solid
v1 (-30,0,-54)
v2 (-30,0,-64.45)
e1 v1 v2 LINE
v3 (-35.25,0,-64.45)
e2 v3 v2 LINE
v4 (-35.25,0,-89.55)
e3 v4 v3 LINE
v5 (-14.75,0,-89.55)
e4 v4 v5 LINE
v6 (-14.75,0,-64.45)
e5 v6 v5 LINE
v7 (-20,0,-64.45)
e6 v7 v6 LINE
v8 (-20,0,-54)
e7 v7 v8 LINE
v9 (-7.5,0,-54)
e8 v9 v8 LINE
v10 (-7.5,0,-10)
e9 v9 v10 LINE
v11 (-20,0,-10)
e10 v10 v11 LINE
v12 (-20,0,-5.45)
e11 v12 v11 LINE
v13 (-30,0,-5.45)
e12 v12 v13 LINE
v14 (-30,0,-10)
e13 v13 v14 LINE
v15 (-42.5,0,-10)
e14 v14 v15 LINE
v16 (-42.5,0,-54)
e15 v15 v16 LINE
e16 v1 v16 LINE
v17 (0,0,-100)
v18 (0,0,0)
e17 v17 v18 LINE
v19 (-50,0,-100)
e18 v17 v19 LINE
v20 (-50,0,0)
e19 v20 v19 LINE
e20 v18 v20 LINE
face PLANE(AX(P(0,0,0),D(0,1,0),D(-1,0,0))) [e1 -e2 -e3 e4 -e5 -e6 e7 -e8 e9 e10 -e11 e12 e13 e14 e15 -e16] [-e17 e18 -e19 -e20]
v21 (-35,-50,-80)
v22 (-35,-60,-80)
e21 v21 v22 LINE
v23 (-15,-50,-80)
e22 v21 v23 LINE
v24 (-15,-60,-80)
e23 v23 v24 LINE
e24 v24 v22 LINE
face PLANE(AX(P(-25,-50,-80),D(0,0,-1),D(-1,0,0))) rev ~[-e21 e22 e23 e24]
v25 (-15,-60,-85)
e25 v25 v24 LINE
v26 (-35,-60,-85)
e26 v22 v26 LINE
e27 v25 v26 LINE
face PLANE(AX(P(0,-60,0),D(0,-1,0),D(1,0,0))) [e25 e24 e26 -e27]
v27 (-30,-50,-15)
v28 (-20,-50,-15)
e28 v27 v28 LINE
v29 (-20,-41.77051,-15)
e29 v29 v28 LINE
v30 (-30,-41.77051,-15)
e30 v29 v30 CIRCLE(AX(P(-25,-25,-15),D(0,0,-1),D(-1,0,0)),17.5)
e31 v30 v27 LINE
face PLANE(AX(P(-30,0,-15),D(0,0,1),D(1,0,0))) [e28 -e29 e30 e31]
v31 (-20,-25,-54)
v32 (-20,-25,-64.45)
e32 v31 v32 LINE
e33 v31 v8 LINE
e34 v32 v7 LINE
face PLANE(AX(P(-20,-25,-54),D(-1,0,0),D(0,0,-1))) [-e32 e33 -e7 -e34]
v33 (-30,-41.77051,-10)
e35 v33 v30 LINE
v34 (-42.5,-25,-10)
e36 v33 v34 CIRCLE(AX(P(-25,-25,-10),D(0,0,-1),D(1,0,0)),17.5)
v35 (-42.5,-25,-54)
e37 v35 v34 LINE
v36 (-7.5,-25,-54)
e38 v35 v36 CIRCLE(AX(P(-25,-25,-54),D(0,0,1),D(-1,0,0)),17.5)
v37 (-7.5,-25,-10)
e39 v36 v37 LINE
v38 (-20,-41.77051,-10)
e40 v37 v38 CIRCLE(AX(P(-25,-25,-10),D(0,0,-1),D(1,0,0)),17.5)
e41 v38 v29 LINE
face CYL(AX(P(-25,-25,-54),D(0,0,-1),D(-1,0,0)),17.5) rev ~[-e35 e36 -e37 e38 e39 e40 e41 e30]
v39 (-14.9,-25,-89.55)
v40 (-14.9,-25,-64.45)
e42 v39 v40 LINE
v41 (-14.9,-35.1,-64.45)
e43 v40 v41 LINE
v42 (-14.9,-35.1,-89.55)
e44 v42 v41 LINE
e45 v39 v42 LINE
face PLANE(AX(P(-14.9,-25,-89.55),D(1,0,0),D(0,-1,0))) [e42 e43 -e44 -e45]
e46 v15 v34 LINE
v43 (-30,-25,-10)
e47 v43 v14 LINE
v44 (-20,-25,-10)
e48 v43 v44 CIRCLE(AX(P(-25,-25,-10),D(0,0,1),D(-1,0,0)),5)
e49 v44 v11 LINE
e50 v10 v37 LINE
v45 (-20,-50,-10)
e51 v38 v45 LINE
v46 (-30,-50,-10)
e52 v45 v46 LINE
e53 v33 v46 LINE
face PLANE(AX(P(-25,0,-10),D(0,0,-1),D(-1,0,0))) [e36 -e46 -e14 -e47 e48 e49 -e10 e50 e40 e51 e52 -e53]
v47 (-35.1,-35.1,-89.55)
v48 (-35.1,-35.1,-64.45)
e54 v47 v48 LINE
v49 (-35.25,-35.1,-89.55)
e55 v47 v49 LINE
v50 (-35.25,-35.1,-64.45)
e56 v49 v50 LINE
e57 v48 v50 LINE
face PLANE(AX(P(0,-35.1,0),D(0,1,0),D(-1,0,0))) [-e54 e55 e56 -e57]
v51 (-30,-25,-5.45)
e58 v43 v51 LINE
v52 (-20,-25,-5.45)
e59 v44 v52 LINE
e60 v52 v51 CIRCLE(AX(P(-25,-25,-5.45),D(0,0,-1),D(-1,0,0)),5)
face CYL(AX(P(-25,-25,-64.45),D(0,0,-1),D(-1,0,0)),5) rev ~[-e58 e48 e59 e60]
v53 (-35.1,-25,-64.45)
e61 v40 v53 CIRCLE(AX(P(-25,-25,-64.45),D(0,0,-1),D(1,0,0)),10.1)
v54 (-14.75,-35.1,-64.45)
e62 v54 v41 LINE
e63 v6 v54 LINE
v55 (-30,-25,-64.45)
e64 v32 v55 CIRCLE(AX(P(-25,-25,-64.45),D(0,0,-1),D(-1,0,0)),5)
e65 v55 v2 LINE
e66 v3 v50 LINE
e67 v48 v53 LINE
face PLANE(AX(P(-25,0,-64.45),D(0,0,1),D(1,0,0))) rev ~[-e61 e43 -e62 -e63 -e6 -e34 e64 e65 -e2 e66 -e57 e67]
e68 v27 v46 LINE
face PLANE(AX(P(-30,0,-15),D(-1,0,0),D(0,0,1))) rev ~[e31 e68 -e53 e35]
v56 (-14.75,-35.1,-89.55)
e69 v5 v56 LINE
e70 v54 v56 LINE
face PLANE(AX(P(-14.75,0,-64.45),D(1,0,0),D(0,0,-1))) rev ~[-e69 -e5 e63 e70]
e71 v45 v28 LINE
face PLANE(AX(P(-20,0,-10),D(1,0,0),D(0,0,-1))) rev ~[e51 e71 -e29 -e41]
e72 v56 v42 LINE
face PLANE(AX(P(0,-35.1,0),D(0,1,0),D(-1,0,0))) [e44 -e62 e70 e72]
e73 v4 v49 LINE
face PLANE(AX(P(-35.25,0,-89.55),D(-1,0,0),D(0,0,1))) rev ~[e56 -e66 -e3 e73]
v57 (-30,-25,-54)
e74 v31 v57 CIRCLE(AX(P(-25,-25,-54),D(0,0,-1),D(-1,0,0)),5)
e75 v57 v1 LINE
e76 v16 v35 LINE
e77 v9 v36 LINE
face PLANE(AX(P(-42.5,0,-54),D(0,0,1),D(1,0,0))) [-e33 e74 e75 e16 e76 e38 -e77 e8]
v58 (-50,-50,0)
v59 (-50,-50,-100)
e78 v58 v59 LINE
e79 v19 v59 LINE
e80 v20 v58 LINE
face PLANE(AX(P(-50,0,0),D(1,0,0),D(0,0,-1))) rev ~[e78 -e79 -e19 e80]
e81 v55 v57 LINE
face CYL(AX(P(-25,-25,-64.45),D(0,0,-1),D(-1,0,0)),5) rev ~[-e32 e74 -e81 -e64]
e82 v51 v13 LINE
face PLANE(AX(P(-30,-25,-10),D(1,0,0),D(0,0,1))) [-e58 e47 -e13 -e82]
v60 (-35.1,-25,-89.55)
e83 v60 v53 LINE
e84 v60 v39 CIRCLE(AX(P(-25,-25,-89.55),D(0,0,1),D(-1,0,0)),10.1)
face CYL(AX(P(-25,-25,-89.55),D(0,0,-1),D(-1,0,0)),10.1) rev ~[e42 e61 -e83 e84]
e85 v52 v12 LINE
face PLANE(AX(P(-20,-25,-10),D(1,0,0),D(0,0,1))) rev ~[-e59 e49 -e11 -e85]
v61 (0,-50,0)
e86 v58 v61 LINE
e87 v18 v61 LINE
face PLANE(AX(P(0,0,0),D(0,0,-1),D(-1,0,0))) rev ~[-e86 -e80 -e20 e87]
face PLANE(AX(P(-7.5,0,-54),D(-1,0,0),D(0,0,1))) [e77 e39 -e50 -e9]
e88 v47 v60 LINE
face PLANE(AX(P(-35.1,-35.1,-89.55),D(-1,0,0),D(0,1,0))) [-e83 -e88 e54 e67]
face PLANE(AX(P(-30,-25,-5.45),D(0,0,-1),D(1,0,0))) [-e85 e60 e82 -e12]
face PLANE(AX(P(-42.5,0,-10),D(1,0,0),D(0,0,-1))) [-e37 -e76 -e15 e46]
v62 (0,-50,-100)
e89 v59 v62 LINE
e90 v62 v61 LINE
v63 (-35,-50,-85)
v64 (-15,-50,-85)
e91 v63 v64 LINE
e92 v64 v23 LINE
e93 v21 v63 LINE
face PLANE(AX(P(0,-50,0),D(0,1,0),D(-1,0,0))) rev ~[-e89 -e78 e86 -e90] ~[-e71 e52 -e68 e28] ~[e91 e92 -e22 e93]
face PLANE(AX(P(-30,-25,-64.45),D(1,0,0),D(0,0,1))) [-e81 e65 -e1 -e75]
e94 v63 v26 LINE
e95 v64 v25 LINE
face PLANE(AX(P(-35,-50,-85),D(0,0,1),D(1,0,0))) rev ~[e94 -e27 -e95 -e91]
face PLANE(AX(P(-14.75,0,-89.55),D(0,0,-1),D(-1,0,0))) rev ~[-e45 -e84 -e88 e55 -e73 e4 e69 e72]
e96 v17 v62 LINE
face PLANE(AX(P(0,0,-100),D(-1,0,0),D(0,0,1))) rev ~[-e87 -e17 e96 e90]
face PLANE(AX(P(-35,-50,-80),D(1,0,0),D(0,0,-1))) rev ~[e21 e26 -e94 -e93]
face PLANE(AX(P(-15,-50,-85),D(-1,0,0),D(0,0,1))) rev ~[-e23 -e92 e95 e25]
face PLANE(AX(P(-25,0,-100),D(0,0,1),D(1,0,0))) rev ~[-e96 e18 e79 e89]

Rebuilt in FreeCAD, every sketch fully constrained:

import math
import FreeCAD as App
import Part
import Sketcher

doc = App.newDocument("Part")
body = doc.addObject("PartDesign::Body", "Body")

# Sketch on XZ plane
sketch1 = body.newObject("Sketcher::SketchObject", "Sketch")
sketch1.AttachmentSupport = (doc.getObject("XZ_Plane"), [""])
sketch1.MapMode = "FlatFace"
sketch1.addGeometry([
    Part.LineSegment(App.Vector(0, 0, 0), App.Vector(0, -100, 0)),
    Part.LineSegment(App.Vector(0, -100, 0), App.Vector(-50, -100, 0)),
    Part.LineSegment(App.Vector(-50, -100, 0), App.Vector(-50, 0, 0)),
    Part.LineSegment(App.Vector(-50, 0, 0), App.Vector(0, 0, 0)),
], False)
sketch1.addConstraint([
    Sketcher.Constraint("Coincident", 0, 2, 1, 1),
    Sketcher.Constraint("Coincident", 1, 2, 2, 1),
    Sketcher.Constraint("Coincident", 2, 2, 3, 1),
    Sketcher.Constraint("Coincident", 3, 2, 0, 1),
    Sketcher.Constraint("Vertical", 0),
    Sketcher.Constraint("Horizontal", 1),
    Sketcher.Constraint("Vertical", 2),
    Sketcher.Constraint("Horizontal", 3),
    Sketcher.Constraint("Coincident", 3, 2, -1, 1),
    Sketcher.Constraint("DistanceX", 1, 2, 1, 1, 50.0),
    Sketcher.Constraint("DistanceY", 0, 2, 0, 1, 100.0),
])
pad1 = body.newObject("PartDesign::Pad", "Pad")
pad1.Profile = sketch1
pad1.Length = 50

# Sketch on XZ plane
sketch2 = body.newObject("Sketcher::SketchObject", "Sketch001")
sketch2.AttachmentSupport = (doc.getObject("XZ_Plane"), [""])
sketch2.MapMode = "FlatFace"
sketch2.addGeometry([
    Part.LineSegment(App.Vector(-15, -90, 0), App.Vector(-35, -90, 0)),
    Part.LineSegment(App.Vector(-35, -90, 0), App.Vector(-35, -64, 0)),
    Part.LineSegment(App.Vector(-35, -64, 0), App.Vector(-15, -64, 0)),
    Part.LineSegment(App.Vector(-15, -64, 0), App.Vector(-15, -90, 0)),
], False)
sketch2.addConstraint([
    Sketcher.Constraint("Coincident", 0, 2, 1, 1),
    Sketcher.Constraint("Coincident", 1, 2, 2, 1),
    Sketcher.Constraint("Coincident", 2, 2, 3, 1),
    Sketcher.Constraint("Coincident", 3, 2, 0, 1),
    Sketcher.Constraint("Horizontal", 0),
    Sketcher.Constraint("Vertical", 1),
    Sketcher.Constraint("Horizontal", 2),
    Sketcher.Constraint("Vertical", 3),
    Sketcher.Constraint("DistanceX", 0, 2, 0, 1, 20.5),
    Sketcher.Constraint("DistanceY", 1, 1, 1, 2, 25.1),
    Sketcher.Constraint("DistanceX", 0, 2, -1, 1, 35.25),
    Sketcher.Constraint("DistanceY", 0, 2, -1, 1, 89.55),
])
pocket1 = body.newObject("PartDesign::Pocket", "Pocket")
pocket1.Profile = sketch2
pocket1.Length = 35.1
pocket1.Reversed = True

# Sketch on XY plane
sketch3 = body.newObject("Sketcher::SketchObject", "Sketch002")
sketch3.AttachmentSupport = (doc.getObject("XY_Plane"), [""])
sketch3.MapMode = "FlatFace"
sketch3.AttachmentOffset = App.Placement(App.Vector(0, 0, -89.55), App.Rotation())
sketch3.addGeometry([
    Part.LineSegment(App.Vector(-35, -35, 0), App.Vector(-35, -25, 0)),  # 0
    Part.ArcOfCircle(Part.Circle(App.Vector(-25, -25, 0), App.Vector(0, 0, 1), 10), math.radians(180), math.radians(270)),  # 1
    Part.LineSegment(App.Vector(-25, -35, 0), App.Vector(-35, -35, 0)),  # 2
    Part.LineSegment(App.Vector(-15, -35, 0), App.Vector(-25, -35, 0)),  # 3
    Part.ArcOfCircle(Part.Circle(App.Vector(-25, -25, 0), App.Vector(0, 0, 1), 10), math.radians(-90), math.radians(0)),  # 4
    Part.LineSegment(App.Vector(-15, -25, 0), App.Vector(-15, -35, 0)),  # 5
], False)
sketch3.addConstraint([
    Sketcher.Constraint("Tangent", 0, 2, 1, 1),
    Sketcher.Constraint("Tangent", 1, 2, 2, 1),
    Sketcher.Constraint("Coincident", 2, 2, 0, 1),
    Sketcher.Constraint("Tangent", 3, 2, 4, 1),
    Sketcher.Constraint("Tangent", 4, 2, 5, 1),
    Sketcher.Constraint("Coincident", 5, 2, 3, 1),
    Sketcher.Constraint("Vertical", 0),
    Sketcher.Constraint("Horizontal", 2),
    Sketcher.Constraint("Horizontal", 3),
    Sketcher.Constraint("Vertical", 5),
    Sketcher.Constraint("Coincident", 4, 3, 1, 3),
    Sketcher.Constraint("Equal", 1, 4),
    Sketcher.Constraint("Radius", 1, 10.1),
    Sketcher.Constraint("DistanceX", 1, 3, -1, 1, 25.0),
    Sketcher.Constraint("DistanceY", 1, 3, -1, 1, 25.0),
])
pad2 = body.newObject("PartDesign::Pad", "Pad001")
pad2.Profile = sketch3
pad2.Length = 25.1

# Sketch on XZ plane
sketch4 = body.newObject("Sketcher::SketchObject", "Sketch003")
sketch4.AttachmentSupport = (doc.getObject("XZ_Plane"), [""])
sketch4.MapMode = "FlatFace"
sketch4.addGeometry([
    Part.LineSegment(App.Vector(-8, -10, 0), App.Vector(-8, -54, 0)),
    Part.LineSegment(App.Vector(-8, -54, 0), App.Vector(-42, -54, 0)),
    Part.LineSegment(App.Vector(-42, -54, 0), App.Vector(-42, -10, 0)),
    Part.LineSegment(App.Vector(-42, -10, 0), App.Vector(-8, -10, 0)),
], False)
sketch4.addConstraint([
    Sketcher.Constraint("Coincident", 0, 2, 1, 1),
    Sketcher.Constraint("Coincident", 1, 2, 2, 1),
    Sketcher.Constraint("Coincident", 2, 2, 3, 1),
    Sketcher.Constraint("Coincident", 3, 2, 0, 1),
    Sketcher.Constraint("Vertical", 0),
    Sketcher.Constraint("Horizontal", 1),
    Sketcher.Constraint("Vertical", 2),
    Sketcher.Constraint("Horizontal", 3),
    Sketcher.Constraint("DistanceX", 1, 2, 1, 1, 35.0),
    Sketcher.Constraint("DistanceY", 0, 2, 0, 1, 44.0),
    Sketcher.Constraint("DistanceY", 2, 2, -1, 1, 10.0),
    Sketcher.Constraint("DistanceX", 0, 2, -1, 1, 7.5),
])
pocket2 = body.newObject("PartDesign::Pocket", "Pocket001")
pocket2.Profile = sketch4
pocket2.Length = 42.5
pocket2.Reversed = True

# Sketch on XY plane
sketch5 = body.newObject("Sketcher::SketchObject", "Sketch004")
sketch5.AttachmentSupport = (doc.getObject("XY_Plane"), [""])
sketch5.MapMode = "FlatFace"
sketch5.AttachmentOffset = App.Placement(App.Vector(0, 0, -54), App.Rotation())
sketch5.addGeometry([
    Part.LineSegment(App.Vector(-42, -42, 0), App.Vector(-42, -25, 0)),  # 0
    Part.ArcOfCircle(Part.Circle(App.Vector(-25, -25, 0), App.Vector(0, 0, 1), 18), math.radians(180), math.radians(270)),  # 1
    Part.LineSegment(App.Vector(-25, -42, 0), App.Vector(-42, -42, 0)),  # 2
    Part.LineSegment(App.Vector(-8, -42, 0), App.Vector(-25, -42, 0)),  # 3
    Part.ArcOfCircle(Part.Circle(App.Vector(-25, -25, 0), App.Vector(0, 0, 1), 18), math.radians(-90), math.radians(0)),  # 4
    Part.LineSegment(App.Vector(-8, -25, 0), App.Vector(-8, -42, 0)),  # 5
], False)
sketch5.addConstraint([
    Sketcher.Constraint("Tangent", 0, 2, 1, 1),
    Sketcher.Constraint("Tangent", 1, 2, 2, 1),
    Sketcher.Constraint("Coincident", 2, 2, 0, 1),
    Sketcher.Constraint("Tangent", 3, 2, 4, 1),
    Sketcher.Constraint("Tangent", 4, 2, 5, 1),
    Sketcher.Constraint("Coincident", 5, 2, 3, 1),
    Sketcher.Constraint("Vertical", 0),
    Sketcher.Constraint("Horizontal", 2),
    Sketcher.Constraint("Horizontal", 3),
    Sketcher.Constraint("Vertical", 5),
    Sketcher.Constraint("Coincident", 4, 3, 1, 3),
    Sketcher.Constraint("Equal", 1, 4),
    Sketcher.Constraint("Radius", 1, 17.5),
    Sketcher.Constraint("DistanceX", 1, 3, -1, 1, 25.0),
    Sketcher.Constraint("DistanceY", 1, 3, -1, 1, 25.0),
])
pad3 = body.newObject("PartDesign::Pad", "Pad002")
pad3.Profile = sketch5
pad3.Length = 44

# Sketch on XY plane
sketch6 = body.newObject("Sketcher::SketchObject", "Sketch005")
sketch6.AttachmentSupport = (doc.getObject("XY_Plane"), [""])
sketch6.MapMode = "FlatFace"
sketch6.AttachmentOffset = App.Placement(App.Vector(0, 0, -64.45), App.Rotation())
sketch6.addGeometry(Part.Circle(App.Vector(-25, -25, 0), App.Vector(0, 0, 1), 5), False)
sketch6.addConstraint([
    Sketcher.Constraint("Diameter", 0, 10.0),
    Sketcher.Constraint("DistanceX", 0, 3, -1, 1, 25.0),
    Sketcher.Constraint("DistanceY", 0, 3, -1, 1, 25.0),
])
pocket3 = body.newObject("PartDesign::Pocket", "Pocket002")
pocket3.Profile = sketch6
pocket3.Length = 59
pocket3.Reversed = True

# Sketch on XZ plane
sketch7 = body.newObject("Sketcher::SketchObject", "Sketch006")
sketch7.AttachmentSupport = (doc.getObject("XZ_Plane"), [""])
sketch7.MapMode = "FlatFace"
sketch7.addGeometry([
    Part.LineSegment(App.Vector(-30, -10, 0), App.Vector(-20, -10, 0)),
    Part.LineSegment(App.Vector(-20, -10, 0), App.Vector(-20, -15, 0)),
    Part.LineSegment(App.Vector(-20, -15, 0), App.Vector(-30, -15, 0)),
    Part.LineSegment(App.Vector(-30, -15, 0), App.Vector(-30, -10, 0)),
], False)
sketch7.addConstraint([
    Sketcher.Constraint("Coincident", 0, 2, 1, 1),
    Sketcher.Constraint("Coincident", 1, 2, 2, 1),
    Sketcher.Constraint("Coincident", 2, 2, 3, 1),
    Sketcher.Constraint("Coincident", 3, 2, 0, 1),
    Sketcher.Constraint("Horizontal", 0),
    Sketcher.Constraint("Vertical", 1),
    Sketcher.Constraint("Horizontal", 2),
    Sketcher.Constraint("Vertical", 3),
    Sketcher.Constraint("DistanceX", 0, 1, 0, 2, 10.0),
    Sketcher.Constraint("DistanceY", 1, 2, 1, 1, 5.0),
    Sketcher.Constraint("DistanceY", 0, 2, -1, 1, 10.0),
    Sketcher.Constraint("DistanceX", 0, 2, -1, 1, 20.0),
])
pocket4 = body.newObject("PartDesign::Pocket", "Pocket003")
pocket4.Profile = sketch7
pocket4.Type = "ThroughAll"
pocket4.Reversed = True

# Sketch on XZ plane
sketch8 = body.newObject("Sketcher::SketchObject", "Sketch007")
sketch8.AttachmentSupport = (doc.getObject("XZ_Plane"), [""])
sketch8.MapMode = "FlatFace"
sketch8.AttachmentOffset = App.Placement(App.Vector(0, 0, 25), App.Rotation())
sketch8.addGeometry([
    Part.LineSegment(App.Vector(-20, -64.5, 0), App.Vector(-30, -64.5, 0)),  # 0
    Part.LineSegment(App.Vector(-30, -64.5, 0), App.Vector(-30, -54, 0)),  # 1
    Part.LineSegment(App.Vector(-30, -54, 0), App.Vector(-20, -54, 0)),  # 2
    Part.LineSegment(App.Vector(-20, -54, 0), App.Vector(-20, -64.5, 0)),  # 3
    Part.LineSegment(App.Vector(-30, -10, 0), App.Vector(-30, -5.5, 0)),  # 4
    Part.LineSegment(App.Vector(-30, -5.5, 0), App.Vector(-20, -5.5, 0)),  # 5
    Part.LineSegment(App.Vector(-20, -5.5, 0), App.Vector(-20, -10, 0)),  # 6
    Part.LineSegment(App.Vector(-20, -10, 0), App.Vector(-30, -10, 0)),  # 7
], False)
sketch8.addConstraint([
    Sketcher.Constraint("Coincident", 0, 2, 1, 1),
    Sketcher.Constraint("Coincident", 1, 2, 2, 1),
    Sketcher.Constraint("Coincident", 2, 2, 3, 1),
    Sketcher.Constraint("Coincident", 3, 2, 0, 1),
    Sketcher.Constraint("Coincident", 4, 2, 5, 1),
    Sketcher.Constraint("Coincident", 5, 2, 6, 1),
    Sketcher.Constraint("Coincident", 6, 2, 7, 1),
    Sketcher.Constraint("Coincident", 7, 2, 4, 1),
    Sketcher.Constraint("Horizontal", 0),
    Sketcher.Constraint("Vertical", 1),
    Sketcher.Constraint("Horizontal", 2),
    Sketcher.Constraint("Vertical", 3),
    Sketcher.Constraint("Vertical", 4),
    Sketcher.Constraint("Horizontal", 5),
    Sketcher.Constraint("Vertical", 6),
    Sketcher.Constraint("Horizontal", 7),
    Sketcher.Constraint("Vertical", 1, 2, 4, 2),
    Sketcher.Constraint("Vertical", 3, 2, 5, 2),
    Sketcher.Constraint("DistanceX", 0, 2, 0, 1, 10.0),
    Sketcher.Constraint("DistanceX", 0, 2, -1, 1, 30.0),
    Sketcher.Constraint("DistanceY", 1, 2, -1, 1, 54.0),
    Sketcher.Constraint("DistanceY", 6, 2, -1, 1, 10.0),
    Sketcher.Constraint("DistanceY", 0, 2, 4, 2, 59.0),
    Sketcher.Constraint("DistanceY", 1, 1, 1, 2, 10.45),
])
pocket5 = body.newObject("PartDesign::Pocket", "Pocket004")
pocket5.Profile = sketch8
pocket5.Type = "ThroughAll"

# Sketch on XZ plane
sketch9 = body.newObject("Sketcher::SketchObject", "Sketch008")
sketch9.AttachmentSupport = (doc.getObject("XZ_Plane"), [""])
sketch9.MapMode = "FlatFace"
sketch9.AttachmentOffset = App.Placement(App.Vector(0, 0, 50), App.Rotation())
sketch9.addGeometry([
    Part.LineSegment(App.Vector(-35, -85, 0), App.Vector(-15, -85, 0)),
    Part.LineSegment(App.Vector(-15, -85, 0), App.Vector(-15, -80, 0)),
    Part.LineSegment(App.Vector(-15, -80, 0), App.Vector(-35, -80, 0)),
    Part.LineSegment(App.Vector(-35, -80, 0), App.Vector(-35, -85, 0)),
], False)
sketch9.addConstraint([
    Sketcher.Constraint("Coincident", 0, 2, 1, 1),
    Sketcher.Constraint("Coincident", 1, 2, 2, 1),
    Sketcher.Constraint("Coincident", 2, 2, 3, 1),
    Sketcher.Constraint("Coincident", 3, 2, 0, 1),
    Sketcher.Constraint("Horizontal", 0),
    Sketcher.Constraint("Vertical", 1),
    Sketcher.Constraint("Horizontal", 2),
    Sketcher.Constraint("Vertical", 3),
    Sketcher.Constraint("DistanceX", 0, 1, 0, 2, 20.0),
    Sketcher.Constraint("DistanceY", 1, 1, 1, 2, 5.0),
    Sketcher.Constraint("DistanceX", 0, 2, -1, 1, 15.0),
    Sketcher.Constraint("DistanceY", 0, 2, -1, 1, 85.0),
])
pad4 = body.newObject("PartDesign::Pad", "Pad003")
pad4.Profile = sketch9
pad4.Length = 10

doc.recompute()
